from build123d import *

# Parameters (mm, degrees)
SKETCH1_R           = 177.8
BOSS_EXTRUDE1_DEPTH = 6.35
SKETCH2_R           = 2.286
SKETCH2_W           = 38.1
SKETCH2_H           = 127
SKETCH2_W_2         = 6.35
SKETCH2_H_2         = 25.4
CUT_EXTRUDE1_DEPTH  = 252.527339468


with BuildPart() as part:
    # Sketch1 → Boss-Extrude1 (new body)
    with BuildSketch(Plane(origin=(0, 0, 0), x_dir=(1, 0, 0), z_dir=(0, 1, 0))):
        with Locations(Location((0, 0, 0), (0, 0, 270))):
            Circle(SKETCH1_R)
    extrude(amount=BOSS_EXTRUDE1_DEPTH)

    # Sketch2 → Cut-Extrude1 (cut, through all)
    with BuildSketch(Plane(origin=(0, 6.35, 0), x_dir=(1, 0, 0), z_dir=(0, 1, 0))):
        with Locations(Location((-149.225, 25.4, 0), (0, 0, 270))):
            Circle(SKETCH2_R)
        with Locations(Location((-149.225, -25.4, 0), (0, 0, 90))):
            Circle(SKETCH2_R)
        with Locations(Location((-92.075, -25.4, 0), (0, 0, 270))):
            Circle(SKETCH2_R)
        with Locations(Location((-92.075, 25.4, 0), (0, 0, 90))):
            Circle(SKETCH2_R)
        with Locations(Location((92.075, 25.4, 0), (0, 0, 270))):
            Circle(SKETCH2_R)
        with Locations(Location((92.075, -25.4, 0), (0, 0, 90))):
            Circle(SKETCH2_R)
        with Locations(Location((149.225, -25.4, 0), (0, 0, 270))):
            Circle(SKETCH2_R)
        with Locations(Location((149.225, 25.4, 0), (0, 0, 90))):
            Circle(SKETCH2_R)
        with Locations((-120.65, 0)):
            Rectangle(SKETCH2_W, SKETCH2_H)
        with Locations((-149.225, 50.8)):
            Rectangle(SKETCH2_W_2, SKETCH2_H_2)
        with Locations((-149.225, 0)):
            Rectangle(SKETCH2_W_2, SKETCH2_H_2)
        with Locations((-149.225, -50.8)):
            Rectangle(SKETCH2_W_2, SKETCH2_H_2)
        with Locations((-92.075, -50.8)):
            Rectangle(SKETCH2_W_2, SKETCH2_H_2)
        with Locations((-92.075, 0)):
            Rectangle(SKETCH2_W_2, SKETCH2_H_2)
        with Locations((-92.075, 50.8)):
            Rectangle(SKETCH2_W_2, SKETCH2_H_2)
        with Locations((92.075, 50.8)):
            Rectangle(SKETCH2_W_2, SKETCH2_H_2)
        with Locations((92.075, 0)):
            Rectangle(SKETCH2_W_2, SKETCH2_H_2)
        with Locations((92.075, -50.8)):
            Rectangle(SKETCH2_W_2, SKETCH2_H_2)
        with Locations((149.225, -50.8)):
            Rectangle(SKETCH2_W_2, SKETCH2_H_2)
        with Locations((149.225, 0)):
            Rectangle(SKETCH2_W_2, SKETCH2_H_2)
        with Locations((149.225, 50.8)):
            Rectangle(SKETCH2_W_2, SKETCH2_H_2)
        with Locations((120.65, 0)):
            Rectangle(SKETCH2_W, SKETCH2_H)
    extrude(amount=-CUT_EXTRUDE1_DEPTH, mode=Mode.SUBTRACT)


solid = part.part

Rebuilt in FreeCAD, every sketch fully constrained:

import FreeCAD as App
import Part
import Sketcher

V = App.Vector
Q = App.Units.Quantity


def add_polygon(sketch, points):
    """Adds a closed chain of lines whose ends are joined by coincident constraints."""
    first, n = sketch.GeometryCount, len(points)
    for a, b in zip(points, points[1:] + points[:1]):
        sketch.addGeometry(Part.LineSegment(App.Vector(*a, 0), App.Vector(*b, 0)), False)
    for i in range(n):
        sketch.addConstraint(Sketcher.Constraint("Coincident", first + i, 2, first + (i + 1) % n, 1))

doc = App.newDocument("Part")
body = doc.addObject("PartDesign::Body", "Body")

sketch1 = body.newObject("Sketcher::SketchObject", "Sketch")
sketch1.AttachmentSupport = (doc.getObject("XZ_Plane"), [""])
sketch1.MapMode = "FlatFace"
sketch1.addGeometry(Part.Circle(V(0, 0, 0), V(0, 0, 1), 178), False)
sketch1.addConstraint([
    Sketcher.Constraint("Coincident", 0, 3, -1, 1),
    Sketcher.Constraint("Diameter", 0, Q("14 in")),
])
pad1 = body.newObject("PartDesign::Pad", "Pad")
pad1.Profile = sketch1
pad1.Length = Q("0.25 in")
pad1.Reversed = True

sketch2 = body.newObject("Sketcher::SketchObject", "Sketch001")
sketch2.AttachmentSupport = (doc.getObject("XZ_Plane"), [""])
sketch2.MapMode = "FlatFace"
sketch2.AttachmentOffset = App.Placement(V(0, 0, -0.25 * 25.4), App.Rotation())
sketch2.addGeometry(Part.Circle(V(-149.2, -25.4, 0), V(0, 0, 1), 2.3), False)
sketch2.addGeometry(Part.Circle(V(-149.2, 25.4, 0), V(0, 0, 1), 2.3), False)
sketch2.addGeometry(Part.Circle(V(-92.1, 25.4, 0), V(0, 0, 1), 2.3), False)
sketch2.addGeometry(Part.Circle(V(-92.1, -25.4, 0), V(0, 0, 1), 2.3), False)
sketch2.addGeometry(Part.Circle(V(92.1, -25.4, 0), V(0, 0, 1), 2.3), False)
sketch2.addGeometry(Part.Circle(V(92.1, 25.4, 0), V(0, 0, 1), 2.3), False)
sketch2.addGeometry(Part.Circle(V(149.2, 25.4, 0), V(0, 0, 1), 2.3), False)
sketch2.addGeometry(Part.Circle(V(149.2, -25.4, 0), V(0, 0, 1), 2.3), False)
add_polygon(sketch2, [(-139.7, -63.5), (-139.7, 63.5), (-101.6, 63.5), (-101.6, -63.5)])
add_polygon(sketch2, [(-152.4, -63.5), (-152.4, -38.1), (-146.1, -38.1), (-146.1, -63.5)])
add_polygon(sketch2, [(-152.4, -12.7), (-152.4, 12.7), (-146.1, 12.7), (-146.1, -12.7)])
add_polygon(sketch2, [(-152.4, 38.1), (-152.4, 63.5), (-146.1, 63.5), (-146.1, 38.1)])
add_polygon(sketch2, [(-95.2, 38.1), (-95.2, 63.5), (-88.9, 63.5), (-88.9, 38.1)])
add_polygon(sketch2, [(-95.2, -12.7), (-95.2, 12.7), (-88.9, 12.7), (-88.9, -12.7)])
add_polygon(sketch2, [(-95.2, -63.5), (-95.2, -38.1), (-88.9, -38.1), (-88.9, -63.5)])
add_polygon(sketch2, [(88.9, -63.5), (88.9, -38.1), (95.2, -38.1), (95.2, -63.5)])
add_polygon(sketch2, [(88.9, -12.7), (88.9, 12.7), (95.2, 12.7), (95.2, -12.7)])
add_polygon(sketch2, [(88.9, 38.1), (88.9, 63.5), (95.2, 63.5), (95.2, 38.1)])
add_polygon(sketch2, [(146.1, 38.1), (146.1, 63.5), (152.4, 63.5), (152.4, 38.1)])
add_polygon(sketch2, [(146.1, -12.7), (146.1, 12.7), (152.4, 12.7), (152.4, -12.7)])
add_polygon(sketch2, [(146.1, -63.5), (146.1, -38.1), (152.4, -38.1), (152.4, -63.5)])
add_polygon(sketch2, [(101.6, -63.5), (101.6, 63.5), (139.7, 63.5), (139.7, -63.5)])
sketch2.addConstraint([
    Sketcher.Constraint("Vertical", 8),
    Sketcher.Constraint("Horizontal", 9),
    Sketcher.Constraint("Vertical", 10),
    Sketcher.Constraint("Horizontal", 11),
    Sketcher.Constraint("Vertical", 12),
    Sketcher.Constraint("Horizontal", 13),
    Sketcher.Constraint("Vertical", 14),
    Sketcher.Constraint("Horizontal", 15),
    Sketcher.Constraint("Vertical", 16),
    Sketcher.Constraint("Horizontal", 17),
    Sketcher.Constraint("Vertical", 18),
    Sketcher.Constraint("Horizontal", 19),
    Sketcher.Constraint("Vertical", 20),
    Sketcher.Constraint("Horizontal", 21),
    Sketcher.Constraint("Vertical", 22),
    Sketcher.Constraint("Horizontal", 23),
    Sketcher.Constraint("Vertical", 24),
    Sketcher.Constraint("Horizontal", 25),
    Sketcher.Constraint("Vertical", 26),
    Sketcher.Constraint("Horizontal", 27),
    Sketcher.Constraint("Vertical", 28),
    Sketcher.Constraint("Horizontal", 29),
    Sketcher.Constraint("Vertical", 30),
    Sketcher.Constraint("Horizontal", 31),
    Sketcher.Constraint("Vertical", 32),
    Sketcher.Constraint("Horizontal", 33),
    Sketcher.Constraint("Vertical", 34),
    Sketcher.Constraint("Horizontal", 35),
    Sketcher.Constraint("Vertical", 36),
    Sketcher.Constraint("Horizontal", 37),
    Sketcher.Constraint("Vertical", 38),
    Sketcher.Constraint("Horizontal", 39),
    Sketcher.Constraint("Vertical", 40),
    Sketcher.Constraint("Horizontal", 41),
    Sketcher.Constraint("Vertical", 42),
    Sketcher.Constraint("Horizontal", 43),
    Sketcher.Constraint("Vertical", 44),
    Sketcher.Constraint("Horizontal", 45),
    Sketcher.Constraint("Vertical", 46),
    Sketcher.Constraint("Horizontal", 47),
    Sketcher.Constraint("Vertical", 48),
    Sketcher.Constraint("Horizontal", 49),
    Sketcher.Constraint("Vertical", 50),
    Sketcher.Constraint("Horizontal", 51),
    Sketcher.Constraint("Vertical", 52),
    Sketcher.Constraint("Horizontal", 53),
    Sketcher.Constraint("Vertical", 54),
    Sketcher.Constraint("Horizontal", 55),
    Sketcher.Constraint("Vertical", 56),
    Sketcher.Constraint("Horizontal", 57),
    Sketcher.Constraint("Vertical", 58),
    Sketcher.Constraint("Horizontal", 59),
    Sketcher.Constraint("Vertical", 60),
    Sketcher.Constraint("Horizontal", 61),
    Sketcher.Constraint("Vertical", 62),
    Sketcher.Constraint("Horizontal", 63),
    Sketcher.Constraint("Equal", 0, 1),
    Sketcher.Constraint("Equal", 1, 2),
    Sketcher.Constraint("Equal", 2, 3),
    Sketcher.Constraint("Equal", 3, 4),
    Sketcher.Constraint("Equal", 4, 5),
    Sketcher.Constraint("Equal", 5, 6),
    Sketcher.Constraint("Equal", 6, 7),
    Sketcher.Constraint("Symmetric", 2, 3, 4, 3, -1, 1),
    Sketcher.Constraint("Symmetric", 3, 3, 5, 3, -1, 1),
    Sketcher.Constraint("Symmetric", 0, 3, 6, 3, -1, 1),
    Sketcher.Constraint("Symmetric", 1, 3, 7, 3, -1, 1),
    Sketcher.Constraint("Symmetric", 26, 2, 36, 2, -1, 1),
    Sketcher.Constraint("Symmetric", 24, 2, 38, 2, -1, 1),
    Sketcher.Constraint("Symmetric", 30, 2, 40, 2, -1, 1),
    Sketcher.Constraint("Symmetric", 28, 2, 42, 2, -1, 1),
    Sketcher.Constraint("Symmetric", 34, 2, 44, 2, -1, 1),
    Sketcher.Constraint("Symmetric", 32, 2, 46, 2, -1, 1),
    Sketcher.Constraint("Symmetric", 14, 2, 48, 2, -1, 1),
    Sketcher.Constraint("Symmetric", 12, 2, 50, 2, -1, 1),
    Sketcher.Constraint("Symmetric", 18, 2, 52, 2, -1, 1),
    Sketcher.Constraint("Symmetric", 16, 2, 54, 2, -1, 1),
    Sketcher.Constraint("Symmetric", 22, 2, 56, 2, -1, 1),
    Sketcher.Constraint("Symmetric", 20, 2, 58, 2, -1, 1),
    Sketcher.Constraint("Symmetric", 10, 2, 60, 2, -1, 1),
    Sketcher.Constraint("Symmetric", 8, 2, 62, 2, -1, 1),
    Sketcher.Constraint("Symmetric", 3, 3, 4, 3, -2),
    Sketcher.Constraint("Symmetric", 1, 3, 6, 3, -2),
    Sketcher.Constraint("Symmetric", 33, 2, 36, 2, -2),
    Sketcher.Constraint("Symmetric", 35, 2, 38, 2, -2),
    Sketcher.Constraint("Symmetric", 21, 2, 48, 2, -2),
    Sketcher.Constraint("Symmetric", 23, 2, 50, 2, -2),
    Sketcher.Constraint("Horizontal", 1, 3, 2, 3),
    Sketcher.Constraint("Horizontal", 11, 2, 14, 2),
    Sketcher.Constraint("Horizontal", 9, 2, 20, 2),
    Sketcher.Constraint("Horizontal", 21, 2, 24, 2),
    Sketcher.Constraint("Horizontal", 23, 2, 26, 2),
    Sketcher.Constraint("Horizontal", 17, 2, 28, 2),
    Sketcher.Constraint("Horizontal", 19, 2, 30, 2),
    Sketcher.Constraint("Horizontal", 29, 2, 40, 2),
    Sketcher.Constraint("Vertical", 15, 2, 16, 2),
    Sketcher.Constraint("Vertical", 14, 2, 17, 2),
    Sketcher.Constraint("Vertical", 27, 2, 28, 2),
    Sketcher.Constraint("Vertical", 26, 2, 29, 2),
    Sketcher.Constraint("Equal", 23, 25),
    Sketcher.Constraint("Equal", 14, 16),
    Sketcher.Constraint("Diameter", 0, Q("0.18 in")),
    Sketcher.Constraint("DistanceY", 8, 1, 8, 2, Q("5 in")),
    Sketcher.Constraint("DistanceY", 12, 1, 12, 2, Q("1 in")),
    Sketcher.Constraint("DistanceX", 9, 1, 9, 2, Q("1.5 in")),
    Sketcher.Constraint("DistanceY", 0, 3, -1, 1, Q("1 in")),
    Sketcher.Constraint("DistanceX", 9, 2, -1, 1, Q("4 in")),
    Sketcher.Constraint("DistanceX", 12, 2, -1, 1, Q("6 in")),
    Sketcher.Constraint("DistanceX", 13, 1, 13, 2, Q("0.25 in")),
    Sketcher.Constraint("DistanceX", 25, 2, -1, 1, Q("3.5 in")),
    Sketcher.Constraint("DistanceX", 0, 3, -1, 1, Q("5.875 in")),
    Sketcher.Constraint("DistanceX", 2, 3, -1, 1, Q("3.625 in")),
])
pocket1 = body.newObject("PartDesign::Pocket", "Pocket")
pocket1.Profile = sketch2
pocket1.Type = "ThroughAll"
pocket1.Reversed = True

doc.recompute()
